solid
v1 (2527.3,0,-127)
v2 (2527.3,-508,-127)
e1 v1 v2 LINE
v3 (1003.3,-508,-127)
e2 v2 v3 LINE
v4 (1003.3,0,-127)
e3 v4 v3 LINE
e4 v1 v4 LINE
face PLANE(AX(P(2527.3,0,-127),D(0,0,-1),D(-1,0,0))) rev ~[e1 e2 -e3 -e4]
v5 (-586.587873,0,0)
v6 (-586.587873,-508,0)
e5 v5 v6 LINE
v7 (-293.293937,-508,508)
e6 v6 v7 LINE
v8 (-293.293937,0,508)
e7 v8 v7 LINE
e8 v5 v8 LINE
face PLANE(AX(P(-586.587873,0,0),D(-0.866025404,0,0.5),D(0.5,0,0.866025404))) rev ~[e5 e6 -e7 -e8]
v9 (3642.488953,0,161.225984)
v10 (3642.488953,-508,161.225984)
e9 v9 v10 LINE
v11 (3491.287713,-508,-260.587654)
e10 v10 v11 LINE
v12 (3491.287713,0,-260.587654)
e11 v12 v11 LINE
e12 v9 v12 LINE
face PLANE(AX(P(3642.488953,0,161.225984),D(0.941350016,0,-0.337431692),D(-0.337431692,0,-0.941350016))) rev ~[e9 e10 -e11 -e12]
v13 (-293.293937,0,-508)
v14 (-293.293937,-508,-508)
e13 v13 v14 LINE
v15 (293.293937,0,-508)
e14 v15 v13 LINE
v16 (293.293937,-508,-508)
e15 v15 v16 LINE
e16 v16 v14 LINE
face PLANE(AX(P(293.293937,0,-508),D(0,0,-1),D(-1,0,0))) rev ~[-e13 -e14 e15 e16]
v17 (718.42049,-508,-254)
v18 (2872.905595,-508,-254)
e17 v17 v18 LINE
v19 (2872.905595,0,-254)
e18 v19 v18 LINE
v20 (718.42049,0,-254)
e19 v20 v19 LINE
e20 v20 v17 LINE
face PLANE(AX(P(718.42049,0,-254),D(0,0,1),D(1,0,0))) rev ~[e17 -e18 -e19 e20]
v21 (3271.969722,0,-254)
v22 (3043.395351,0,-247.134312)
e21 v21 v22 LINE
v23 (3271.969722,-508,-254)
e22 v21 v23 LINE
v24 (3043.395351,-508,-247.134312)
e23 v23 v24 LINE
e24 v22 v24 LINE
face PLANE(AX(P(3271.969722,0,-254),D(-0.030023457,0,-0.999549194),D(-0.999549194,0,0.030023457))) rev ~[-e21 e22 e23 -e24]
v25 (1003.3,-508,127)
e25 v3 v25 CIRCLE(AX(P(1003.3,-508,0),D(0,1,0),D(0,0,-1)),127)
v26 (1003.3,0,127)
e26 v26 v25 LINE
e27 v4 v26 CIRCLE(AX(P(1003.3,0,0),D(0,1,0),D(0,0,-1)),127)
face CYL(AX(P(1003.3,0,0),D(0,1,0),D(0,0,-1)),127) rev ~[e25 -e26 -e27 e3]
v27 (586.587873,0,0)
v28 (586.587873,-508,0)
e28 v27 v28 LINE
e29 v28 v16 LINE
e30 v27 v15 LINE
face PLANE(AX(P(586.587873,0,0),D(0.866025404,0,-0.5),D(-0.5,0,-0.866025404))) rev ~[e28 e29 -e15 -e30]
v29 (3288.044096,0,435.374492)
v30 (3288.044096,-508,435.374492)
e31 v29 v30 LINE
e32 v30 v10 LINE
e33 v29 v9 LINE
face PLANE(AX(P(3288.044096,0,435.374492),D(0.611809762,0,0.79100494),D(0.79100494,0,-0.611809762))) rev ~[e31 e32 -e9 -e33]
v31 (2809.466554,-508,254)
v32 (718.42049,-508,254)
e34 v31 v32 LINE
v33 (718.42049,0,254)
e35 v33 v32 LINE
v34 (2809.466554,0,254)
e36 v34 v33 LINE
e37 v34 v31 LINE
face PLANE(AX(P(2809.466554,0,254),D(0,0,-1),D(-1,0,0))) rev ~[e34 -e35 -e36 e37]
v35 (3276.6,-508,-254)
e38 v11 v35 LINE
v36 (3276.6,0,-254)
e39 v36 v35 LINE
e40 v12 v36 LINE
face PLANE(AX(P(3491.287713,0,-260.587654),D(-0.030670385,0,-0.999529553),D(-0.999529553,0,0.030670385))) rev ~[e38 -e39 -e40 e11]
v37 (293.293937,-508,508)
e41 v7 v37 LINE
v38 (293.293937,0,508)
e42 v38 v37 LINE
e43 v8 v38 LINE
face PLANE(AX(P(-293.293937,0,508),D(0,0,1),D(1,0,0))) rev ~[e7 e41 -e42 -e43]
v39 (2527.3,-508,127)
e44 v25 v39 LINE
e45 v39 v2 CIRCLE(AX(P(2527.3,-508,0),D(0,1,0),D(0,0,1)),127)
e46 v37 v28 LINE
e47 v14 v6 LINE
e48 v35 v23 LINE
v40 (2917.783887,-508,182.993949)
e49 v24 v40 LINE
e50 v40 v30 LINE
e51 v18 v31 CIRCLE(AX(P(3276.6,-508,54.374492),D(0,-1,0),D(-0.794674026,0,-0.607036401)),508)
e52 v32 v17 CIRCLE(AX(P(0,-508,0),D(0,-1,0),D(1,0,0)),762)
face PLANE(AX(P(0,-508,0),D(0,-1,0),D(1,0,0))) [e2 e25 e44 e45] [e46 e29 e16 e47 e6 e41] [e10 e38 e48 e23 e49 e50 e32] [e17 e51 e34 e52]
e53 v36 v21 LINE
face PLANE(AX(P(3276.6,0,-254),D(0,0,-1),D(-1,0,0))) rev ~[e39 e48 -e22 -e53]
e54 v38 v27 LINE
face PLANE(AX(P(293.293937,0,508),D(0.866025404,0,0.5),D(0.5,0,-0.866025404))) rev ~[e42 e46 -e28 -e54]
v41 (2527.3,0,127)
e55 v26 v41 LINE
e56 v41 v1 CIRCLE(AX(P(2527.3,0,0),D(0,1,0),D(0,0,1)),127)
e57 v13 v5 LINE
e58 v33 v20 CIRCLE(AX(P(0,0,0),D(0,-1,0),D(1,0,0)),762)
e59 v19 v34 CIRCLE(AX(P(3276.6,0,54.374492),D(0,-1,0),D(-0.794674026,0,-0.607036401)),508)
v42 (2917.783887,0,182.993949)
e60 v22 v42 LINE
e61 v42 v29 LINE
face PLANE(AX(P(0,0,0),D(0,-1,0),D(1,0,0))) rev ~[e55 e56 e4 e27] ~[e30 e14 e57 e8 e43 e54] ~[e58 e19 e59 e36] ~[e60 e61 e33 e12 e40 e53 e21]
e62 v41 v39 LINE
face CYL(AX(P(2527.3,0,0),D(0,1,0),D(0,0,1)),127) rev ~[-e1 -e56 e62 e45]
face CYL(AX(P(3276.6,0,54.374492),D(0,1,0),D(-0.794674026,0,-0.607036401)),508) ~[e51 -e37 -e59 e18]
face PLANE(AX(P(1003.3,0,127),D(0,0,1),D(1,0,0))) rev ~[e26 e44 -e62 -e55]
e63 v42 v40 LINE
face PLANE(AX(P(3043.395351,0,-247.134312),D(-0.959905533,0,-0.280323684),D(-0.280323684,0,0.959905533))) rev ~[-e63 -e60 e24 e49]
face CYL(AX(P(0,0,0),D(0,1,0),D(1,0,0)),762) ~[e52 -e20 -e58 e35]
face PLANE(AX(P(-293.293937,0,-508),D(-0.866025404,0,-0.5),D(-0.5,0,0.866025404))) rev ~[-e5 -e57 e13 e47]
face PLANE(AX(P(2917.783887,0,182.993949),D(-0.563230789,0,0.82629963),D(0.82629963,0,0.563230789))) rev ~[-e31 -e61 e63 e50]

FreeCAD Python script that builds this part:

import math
import FreeCAD as App
import Part
import Sketcher
from FreeCAD import Vector
Q = App.Units.Quantity

doc = App.newDocument("Part")
body = doc.addObject("PartDesign::Body", "Body")

# Sketch on XZ plane
sketch1 = doc.addObject("Sketcher::SketchObject", "Sketch")
body.addObject(sketch1)
sketch1.AttachmentSupport = (doc.XZ_Plane, [""])
sketch1.MapMode = "FlatFace"
sketch1.addGeometry(Part.ArcOfCircle(Part.Circle(Vector(0, 0, 0), Vector(0, 0, 1), 762), math.radians(19.471221), math.radians(340.528779)), False)
sketch1.addGeometry(Part.LineSegment(Vector(718.42049, -254, 0), Vector(2872.905595, -254, 0)), False)
sketch1.addGeometry(Part.ArcOfCircle(Part.Circle(Vector(3276.6, 54.374492, 0), Vector(0, 0, 1), 508), math.radians(-142.624477), math.radians(156.860971)), False)
sketch1.addGeometry(Part.LineSegment(Vector(2809.466554, 254, 0), Vector(718.42049, 254, 0)), False)
sketch1.addGeometry(Part.LineSegment(Vector(-293.293937, -508, 0), Vector(-586.587873, 0, 0)), False)
sketch1.addGeometry(Part.LineSegment(Vector(-586.587873, 0, 0), Vector(-293.293937, 508, 0)), False)
sketch1.addGeometry(Part.LineSegment(Vector(-293.293937, 508, 0), Vector(293.293937, 508, 0)), False)
sketch1.addGeometry(Part.LineSegment(Vector(293.293937, 508, 0), Vector(586.587873, 0, 0)), False)
sketch1.addGeometry(Part.LineSegment(Vector(586.587873, 0, 0), Vector(293.293937, -508, 0)), False)
sketch1.addGeometry(Part.LineSegment(Vector(293.293937, -508, 0), Vector(-293.293937, -508, 0)), False)
sketch1.addGeometry(Part.LineSegment(Vector(1003.3, 127, 0), Vector(2527.3, 127, 0)), False)
sketch1.addGeometry(Part.ArcOfCircle(Part.Circle(Vector(2527.3, 0, 0), Vector(0, 0, 1), 127), math.radians(-90), math.radians(90)), False)
sketch1.addGeometry(Part.LineSegment(Vector(2527.3, -127, 0), Vector(1003.3, -127, 0)), False)
sketch1.addGeometry(Part.ArcOfCircle(Part.Circle(Vector(1003.3, 0, 0), Vector(0, 0, 1), 127), math.radians(90), math.radians(270)), False)
sketch1.addGeometry(Part.LineSegment(Vector(3491.287713, -260.587654, 0), Vector(3276.6, -254, 0)), False)
sketch1.addGeometry(Part.LineSegment(Vector(3276.6, -254, 0), Vector(3271.969722, -254, 0)), False)
sketch1.addGeometry(Part.LineSegment(Vector(3271.969722, -254, 0), Vector(3043.395351, -247.134312, 0)), False)
sketch1.addGeometry(Part.LineSegment(Vector(3043.395351, -247.134312, 0), Vector(2917.783887, 182.993949, 0)), False)
sketch1.addGeometry(Part.LineSegment(Vector(2917.783887, 182.993949, 0), Vector(3288.044096, 435.374492, 0)), False)
sketch1.addGeometry(Part.LineSegment(Vector(3288.044096, 435.374492, 0), Vector(3642.488953, 161.225984, 0)), False)
sketch1.addGeometry(Part.LineSegment(Vector(3642.488953, 161.225984, 0), Vector(3491.287713, -260.587654, 0)), False)
sketch1.addConstraint(Sketcher.Constraint("Coincident", 0, 2, 1, 1))
sketch1.addConstraint(Sketcher.Constraint("Coincident", 1, 2, 2, 1))
sketch1.addConstraint(Sketcher.Constraint("Coincident", 2, 2, 3, 1))
sketch1.addConstraint(Sketcher.Constraint("Coincident", 3, 2, 0, 1))
sketch1.addConstraint(Sketcher.Constraint("Coincident", 4, 2, 5, 1))
sketch1.addConstraint(Sketcher.Constraint("Coincident", 5, 2, 6, 1))
sketch1.addConstraint(Sketcher.Constraint("Coincident", 6, 2, 7, 1))
sketch1.addConstraint(Sketcher.Constraint("Coincident", 7, 2, 8, 1))
sketch1.addConstraint(Sketcher.Constraint("Coincident", 8, 2, 9, 1))
sketch1.addConstraint(Sketcher.Constraint("Coincident", 9, 2, 4, 1))
sketch1.addConstraint(Sketcher.Constraint("Tangent", 10, 2, 11, 2))
sketch1.addConstraint(Sketcher.Constraint("Tangent", 11, 1, 12, 1))
sketch1.addConstraint(Sketcher.Constraint("Tangent", 12, 2, 13, 2))
sketch1.addConstraint(Sketcher.Constraint("Tangent", 13, 1, 10, 1))
sketch1.addConstraint(Sketcher.Constraint("Coincident", 14, 2, 15, 1))
sketch1.addConstraint(Sketcher.Constraint("Coincident", 15, 2, 16, 1))
sketch1.addConstraint(Sketcher.Constraint("Coincident", 16, 2, 17, 1))
sketch1.addConstraint(Sketcher.Constraint("Coincident", 17, 2, 18, 1))
sketch1.addConstraint(Sketcher.Constraint("Coincident", 18, 2, 19, 1))
sketch1.addConstraint(Sketcher.Constraint("Coincident", 19, 2, 20, 1))
sketch1.addConstraint(Sketcher.Constraint("Coincident", 20, 2, 14, 1))
sketch1.addConstraint(Sketcher.Constraint("Horizontal", 1))
sketch1.addConstraint(Sketcher.Constraint("Horizontal", 3))
sketch1.addConstraint(Sketcher.Constraint("Horizontal", 6))
sketch1.addConstraint(Sketcher.Constraint("Horizontal", 9))
sketch1.addConstraint(Sketcher.Constraint("Horizontal", 10))
sketch1.addConstraint(Sketcher.Constraint("Horizontal", 12))
sketch1.addConstraint(Sketcher.Constraint("Horizontal", 15))
sketch1.addConstraint(Sketcher.Constraint("Coincident", 0, 3, -1, 1))
sketch1.addConstraint(Sketcher.Constraint("Symmetric", 4, 2, 7, 2, -1, 1))
sketch1.addConstraint(Sketcher.Constraint("Symmetric", 5, 2, 8, 2, -1, 1))
sketch1.addConstraint(Sketcher.Constraint("PointOnObject", 11, 3, -1))
sketch1.addConstraint(Sketcher.Constraint("PointOnObject", 4, 2, -1))
sketch1.addConstraint(Sketcher.Constraint("Parallel", 4, 7))
sketch1.addConstraint(Sketcher.Constraint("Horizontal", 1, 2, 14, 2))
sketch1.addConstraint(Sketcher.Constraint("Vertical", 6, 2, 8, 2))
sketch1.addConstraint(Sketcher.Constraint("Vertical", 2, 3, 14, 2))
sketch1.addConstraint(Sketcher.Constraint("Equal", 17, 18))
sketch1.addConstraint(Sketcher.Constraint("Equal", 18, 19))
sketch1.addConstraint(Sketcher.Constraint("Equal", 19, 20))
sketch1.addConstraint(Sketcher.Constraint("Radius", 0, Q("30 in")))
sketch1.addConstraint(Sketcher.Constraint("Radius", 2, Q("20 in")))
sketch1.addConstraint(Sketcher.Constraint("Radius", 11, Q("5 in")))
sketch1.addConstraint(Sketcher.Constraint("DistanceX", 10, 1, 10, 2, Q("60 in")))
sketch1.addConstraint(Sketcher.Constraint("DistanceX", -1, 1, 2, 3, Q("129 in")))
sketch1.addConstraint(Sketcher.Constraint("DistanceY", 1, 2, -1, 1, Q("10 in")))
sketch1.addConstraint(Sketcher.Constraint("DistanceY", -1, 1, 3, 2, Q("10 in")))
sketch1.addConstraint(Sketcher.Constraint("DistanceY", -1, 1, 5, 2, Q("20 in")))
sketch1.addConstraint(Sketcher.Constraint("Angle", 4, Q("120 deg")))
sketch1.addConstraint(Sketcher.Constraint("DistanceY", 2, 3, 18, 2, Q("15 in")))
sketch1.addConstraint(Sketcher.Constraint("DistanceX", -1, 1, 11, 3, Q("99.5 in")))
sketch1.addConstraint(Sketcher.Constraint("DistanceX", 2, 2, 1, 2, Q("2.4976 in")))
sketch1.addConstraint(Sketcher.Constraint("Distance", 14, Q("214.78876 mm")))
sketch1.addConstraint(Sketcher.Constraint("Distance", 16, Q("228.677461 mm")))
sketch1.addConstraint(Sketcher.Constraint("DistanceX", 6, 1, 6, 2, Q("586.587873 mm")))
sketch1.addConstraint(Sketcher.Constraint("DistanceX", 15, 2, 15, 1, Q("4.630278 mm")))
sketch1.addConstraint(Sketcher.Constraint("DistanceX", -1, 1, 16, 2, Q("3043.395351 mm")))
sketch1.addConstraint(Sketcher.Constraint("DistanceY", -1, 1, 17, 2, Q("182.993949 mm")))
sketch1.addConstraint(Sketcher.Constraint("DistanceX", 17, 2, 18, 2, Q("370.260209 mm")))
sketch1.addConstraint(Sketcher.Constraint("DistanceX", 15, 2, 19, 2, Q("370.519231 mm")))
pad1 = doc.addObject("PartDesign::Pad", "Pad")
body.addObject(pad1)
pad1.Profile = sketch1
pad1.Length = Q("20 in")

doc.recompute()
